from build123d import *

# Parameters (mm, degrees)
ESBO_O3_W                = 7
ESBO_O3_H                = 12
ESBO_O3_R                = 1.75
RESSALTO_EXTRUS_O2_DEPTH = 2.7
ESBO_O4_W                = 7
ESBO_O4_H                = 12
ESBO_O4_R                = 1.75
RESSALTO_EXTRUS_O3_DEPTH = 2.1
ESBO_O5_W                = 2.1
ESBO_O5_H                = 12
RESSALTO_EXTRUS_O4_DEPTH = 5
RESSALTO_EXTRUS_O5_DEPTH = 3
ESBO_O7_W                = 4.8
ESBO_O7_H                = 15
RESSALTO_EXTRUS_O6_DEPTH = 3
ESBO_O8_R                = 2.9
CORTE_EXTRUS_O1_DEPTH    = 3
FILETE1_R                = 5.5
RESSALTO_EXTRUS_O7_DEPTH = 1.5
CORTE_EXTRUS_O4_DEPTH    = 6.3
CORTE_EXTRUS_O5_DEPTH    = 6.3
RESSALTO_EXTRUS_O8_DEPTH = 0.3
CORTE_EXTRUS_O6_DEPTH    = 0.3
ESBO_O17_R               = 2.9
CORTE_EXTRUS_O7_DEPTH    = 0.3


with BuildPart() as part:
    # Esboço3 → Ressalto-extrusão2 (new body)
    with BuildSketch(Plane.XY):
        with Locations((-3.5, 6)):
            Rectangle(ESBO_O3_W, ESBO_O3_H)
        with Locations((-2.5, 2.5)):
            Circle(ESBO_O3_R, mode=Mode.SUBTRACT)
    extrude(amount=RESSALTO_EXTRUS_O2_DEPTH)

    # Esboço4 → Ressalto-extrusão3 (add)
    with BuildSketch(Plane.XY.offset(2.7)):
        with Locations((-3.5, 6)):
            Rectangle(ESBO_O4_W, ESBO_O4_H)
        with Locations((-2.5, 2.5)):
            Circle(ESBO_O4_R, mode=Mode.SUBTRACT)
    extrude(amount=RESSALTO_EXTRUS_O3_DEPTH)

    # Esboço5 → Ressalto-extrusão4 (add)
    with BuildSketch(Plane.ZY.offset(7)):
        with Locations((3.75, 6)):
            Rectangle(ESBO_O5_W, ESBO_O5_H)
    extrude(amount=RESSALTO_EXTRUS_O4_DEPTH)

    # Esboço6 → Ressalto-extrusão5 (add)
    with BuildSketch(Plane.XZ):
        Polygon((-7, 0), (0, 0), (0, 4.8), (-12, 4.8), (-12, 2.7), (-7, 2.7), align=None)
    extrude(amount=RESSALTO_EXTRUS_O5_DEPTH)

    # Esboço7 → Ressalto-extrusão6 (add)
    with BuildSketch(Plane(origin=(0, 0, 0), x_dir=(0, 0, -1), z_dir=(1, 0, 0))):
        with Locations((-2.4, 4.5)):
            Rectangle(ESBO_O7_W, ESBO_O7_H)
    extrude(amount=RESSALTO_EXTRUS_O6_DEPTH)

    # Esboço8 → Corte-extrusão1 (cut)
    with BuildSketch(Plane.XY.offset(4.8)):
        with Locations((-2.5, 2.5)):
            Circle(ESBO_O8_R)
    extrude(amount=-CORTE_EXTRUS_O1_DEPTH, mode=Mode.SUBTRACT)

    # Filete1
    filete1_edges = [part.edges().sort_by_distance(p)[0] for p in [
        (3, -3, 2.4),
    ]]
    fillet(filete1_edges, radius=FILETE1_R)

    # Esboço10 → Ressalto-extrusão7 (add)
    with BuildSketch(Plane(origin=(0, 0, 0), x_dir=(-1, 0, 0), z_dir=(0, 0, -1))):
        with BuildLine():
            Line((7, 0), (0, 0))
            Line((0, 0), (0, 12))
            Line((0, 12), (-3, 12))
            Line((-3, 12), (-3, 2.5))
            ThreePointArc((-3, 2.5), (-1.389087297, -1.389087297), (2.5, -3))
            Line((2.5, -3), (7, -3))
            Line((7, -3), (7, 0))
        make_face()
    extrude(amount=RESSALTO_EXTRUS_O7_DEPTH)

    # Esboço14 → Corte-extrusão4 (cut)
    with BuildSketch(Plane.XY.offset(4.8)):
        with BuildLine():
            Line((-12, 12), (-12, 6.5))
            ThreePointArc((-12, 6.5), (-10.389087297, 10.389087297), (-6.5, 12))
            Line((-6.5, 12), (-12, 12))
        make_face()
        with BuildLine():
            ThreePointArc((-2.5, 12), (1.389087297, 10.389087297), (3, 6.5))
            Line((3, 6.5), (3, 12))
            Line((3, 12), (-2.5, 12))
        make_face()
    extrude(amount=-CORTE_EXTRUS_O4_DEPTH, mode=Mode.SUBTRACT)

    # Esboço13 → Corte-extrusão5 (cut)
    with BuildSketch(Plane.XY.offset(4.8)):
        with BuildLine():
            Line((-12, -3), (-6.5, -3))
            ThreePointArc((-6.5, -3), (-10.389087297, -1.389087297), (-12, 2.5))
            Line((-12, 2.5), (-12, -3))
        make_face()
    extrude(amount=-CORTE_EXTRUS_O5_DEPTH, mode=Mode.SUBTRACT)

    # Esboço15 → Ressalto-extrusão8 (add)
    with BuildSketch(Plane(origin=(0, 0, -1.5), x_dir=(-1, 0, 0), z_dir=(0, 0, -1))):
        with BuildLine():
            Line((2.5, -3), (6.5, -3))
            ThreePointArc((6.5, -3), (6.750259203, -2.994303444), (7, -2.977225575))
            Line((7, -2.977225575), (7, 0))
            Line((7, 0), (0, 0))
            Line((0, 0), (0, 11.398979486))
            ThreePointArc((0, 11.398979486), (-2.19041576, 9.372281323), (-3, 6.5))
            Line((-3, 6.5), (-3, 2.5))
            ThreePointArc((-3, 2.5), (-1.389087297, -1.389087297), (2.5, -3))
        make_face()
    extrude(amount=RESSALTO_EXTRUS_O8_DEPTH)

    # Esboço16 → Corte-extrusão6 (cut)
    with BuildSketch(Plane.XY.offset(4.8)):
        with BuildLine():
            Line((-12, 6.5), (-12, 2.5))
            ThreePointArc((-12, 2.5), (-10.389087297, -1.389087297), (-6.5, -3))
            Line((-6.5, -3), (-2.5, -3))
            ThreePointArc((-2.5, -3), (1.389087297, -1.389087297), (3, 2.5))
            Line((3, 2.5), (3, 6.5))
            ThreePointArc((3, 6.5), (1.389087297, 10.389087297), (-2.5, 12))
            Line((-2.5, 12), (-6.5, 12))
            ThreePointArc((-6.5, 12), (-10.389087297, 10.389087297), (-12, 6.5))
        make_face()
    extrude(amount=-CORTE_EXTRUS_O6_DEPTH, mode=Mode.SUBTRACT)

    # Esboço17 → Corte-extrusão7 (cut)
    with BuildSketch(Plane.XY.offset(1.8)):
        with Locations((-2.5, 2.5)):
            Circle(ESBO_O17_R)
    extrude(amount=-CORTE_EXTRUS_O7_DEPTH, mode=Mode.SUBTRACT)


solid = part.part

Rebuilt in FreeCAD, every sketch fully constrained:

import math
import FreeCAD as App
import Part
import Sketcher

V = App.Vector
Q = App.Units.Quantity


def edges_at(feature, points):
    """Names of the edges that pass closest to the given points."""
    edges = feature.Shape.Edges
    near = lambda p: min(range(len(edges)), key=lambda i: edges[i].distToShape(Part.Vertex(*p))[0])
    return sorted({f"Edge{near(p) + 1}" for p in points})


def add_polygon(sketch, points):
    """Adds a closed chain of lines whose ends are joined by coincident constraints."""
    first, n = sketch.GeometryCount, len(points)
    for a, b in zip(points, points[1:] + points[:1]):
        sketch.addGeometry(Part.LineSegment(App.Vector(*a, 0), App.Vector(*b, 0)), False)
    for i in range(n):
        sketch.addConstraint(Sketcher.Constraint("Coincident", first + i, 2, first + (i + 1) % n, 1))

doc = App.newDocument("Part")
body = doc.addObject("PartDesign::Body", "Body")

# Sketch on XY plane
sketch1 = body.newObject("Sketcher::SketchObject", "Sketch")
sketch1.AttachmentSupport = (doc.getObject("XY_Plane"), [""])
sketch1.MapMode = "FlatFace"
add_polygon(sketch1, [(-7, 12), (-7, 0), (0, 0), (0, 12)])  # lines 0-3
sketch1.addGeometry(Part.Circle(V(-2.5, 2.5, 0), V(0, 0, 1), 1.75), False)  # 4
sketch1.addConstraint(Sketcher.Constraint("Vertical", 0))
sketch1.addConstraint(Sketcher.Constraint("Horizontal", 1))
sketch1.addConstraint(Sketcher.Constraint("Vertical", 2))
sketch1.addConstraint(Sketcher.Constraint("Horizontal", 3))
sketch1.addConstraint(Sketcher.Constraint("Coincident", 1, 2, -1, 1))
sketch1.addConstraint(Sketcher.Constraint("Diameter", 4, Q("3.5 mm")))
sketch1.addConstraint(Sketcher.Constraint("DistanceX", 1, 1, 1, 2, Q("7 mm")))
sketch1.addConstraint(Sketcher.Constraint("DistanceY", 0, 2, 0, 1, Q("12 mm")))
sketch1.addConstraint(Sketcher.Constraint("DistanceX", 4, 3, -1, 1, Q("2.5 mm")))
sketch1.addConstraint(Sketcher.Constraint("DistanceY", -1, 1, 4, 3, Q("2.5 mm")))
pad1 = body.newObject("PartDesign::Pad", "Pad")
pad1.Profile = sketch1
pad1.Length = 2.7

# Sketch on XY plane
sketch2 = body.newObject("Sketcher::SketchObject", "Sketch001")
sketch2.AttachmentSupport = (doc.getObject("XY_Plane"), [""])
sketch2.MapMode = "FlatFace"
sketch2.AttachmentOffset = App.Placement(V(0, 0, 2.7), App.Rotation())
add_polygon(sketch2, [(-7, 12), (-7, 0), (0, 0), (0, 12)])  # lines 0-3
sketch2.addGeometry(Part.Circle(V(-2.5, 2.5, 0), V(0, 0, 1), 1.75), False)  # 4
sketch2.addConstraint(Sketcher.Constraint("Vertical", 0))
sketch2.addConstraint(Sketcher.Constraint("Horizontal", 1))
sketch2.addConstraint(Sketcher.Constraint("Vertical", 2))
sketch2.addConstraint(Sketcher.Constraint("Horizontal", 3))
sketch2.addConstraint(Sketcher.Constraint("Coincident", 1, 2, -1, 1))
sketch2.addConstraint(Sketcher.Constraint("Diameter", 4, Q("3.5 mm")))
sketch2.addConstraint(Sketcher.Constraint("DistanceX", 1, 1, 1, 2, Q("7 mm")))
sketch2.addConstraint(Sketcher.Constraint("DistanceY", 0, 2, 0, 1, Q("12 mm")))
sketch2.addConstraint(Sketcher.Constraint("DistanceX", 4, 3, -1, 1, Q("2.5 mm")))
sketch2.addConstraint(Sketcher.Constraint("DistanceY", -1, 1, 4, 3, Q("2.5 mm")))
pad2 = body.newObject("PartDesign::Pad", "Pad001")
pad2.Profile = sketch2
pad2.Length = 2.1

# Sketch on YZ plane
sketch3 = body.newObject("Sketcher::SketchObject", "Sketch002")
sketch3.AttachmentSupport = (doc.getObject("YZ_Plane"), [""])
sketch3.MapMode = "FlatFace"
sketch3.AttachmentOffset = App.Placement(V(0, 0, -7), App.Rotation())
add_polygon(sketch3, [(12, 2.7), (0, 2.7), (0, 4.8), (12, 4.8)])  # lines 0-3
sketch3.addConstraint(Sketcher.Constraint("Horizontal", 0))
sketch3.addConstraint(Sketcher.Constraint("Vertical", 1))
sketch3.addConstraint(Sketcher.Constraint("Horizontal", 2))
sketch3.addConstraint(Sketcher.Constraint("Vertical", 3))
sketch3.addConstraint(Sketcher.Constraint("PointOnObject", 0, 2, -2))
sketch3.addConstraint(Sketcher.Constraint("DistanceX", 0, 2, 0, 1, Q("12 mm")))
sketch3.addConstraint(Sketcher.Constraint("DistanceY", 1, 1, 1, 2, Q("2.1 mm")))
sketch3.addConstraint(Sketcher.Constraint("DistanceY", -1, 1, 0, 2, Q("2.7 mm")))
pad3 = body.newObject("PartDesign::Pad", "Pad002")
pad3.Profile = sketch3
pad3.Length = 5
pad3.Reversed = True

# Sketch on XZ plane
sketch4 = body.newObject("Sketcher::SketchObject", "Sketch003")
sketch4.AttachmentSupport = (doc.getObject("XZ_Plane"), [""])
sketch4.MapMode = "FlatFace"
add_polygon(sketch4, [(-7, 0), (0, 0), (0, 4.8), (-12, 4.8), (-12, 2.7), (-7, 2.7)])  # lines 0-5
sketch4.addConstraint(Sketcher.Constraint("Horizontal", 0))
sketch4.addConstraint(Sketcher.Constraint("Vertical", 1))
sketch4.addConstraint(Sketcher.Constraint("Horizontal", 2))
sketch4.addConstraint(Sketcher.Constraint("Vertical", 3))
sketch4.addConstraint(Sketcher.Constraint("Horizontal", 4))
sketch4.addConstraint(Sketcher.Constraint("Vertical", 5))
sketch4.addConstraint(Sketcher.Constraint("Coincident", 0, 2, -1, 1))
sketch4.addConstraint(Sketcher.Constraint("DistanceX", 0, 1, 0, 2, Q("7 mm")))
sketch4.addConstraint(Sketcher.Constraint("DistanceX", 2, 2, 2, 1, Q("12 mm")))
sketch4.addConstraint(Sketcher.Constraint("DistanceY", 1, 1, 1, 2, Q("4.8 mm")))
sketch4.addConstraint(Sketcher.Constraint("DistanceY", 3, 2, 3, 1, Q("2.1 mm")))
pad4 = body.newObject("PartDesign::Pad", "Pad003")
pad4.Profile = sketch4
pad4.Length = 3

# Sketch on YZ plane
sketch5 = body.newObject("Sketcher::SketchObject", "Sketch004")
sketch5.AttachmentSupport = (doc.getObject("YZ_Plane"), [""])
sketch5.MapMode = "FlatFace"
add_polygon(sketch5, [(12, 4.8), (-3, 4.8), (-3, 0), (12, 0)])  # lines 0-3
sketch5.addConstraint(Sketcher.Constraint("Horizontal", 0))
sketch5.addConstraint(Sketcher.Constraint("Vertical", 1))
sketch5.addConstraint(Sketcher.Constraint("Horizontal", 2))
sketch5.addConstraint(Sketcher.Constraint("Vertical", 3))
sketch5.addConstraint(Sketcher.Constraint("PointOnObject", 1, 2, -1))
sketch5.addConstraint(Sketcher.Constraint("DistanceX", 0, 2, 0, 1, Q("15 mm")))
sketch5.addConstraint(Sketcher.Constraint("DistanceY", 1, 2, 1, 1, Q("4.8 mm")))
sketch5.addConstraint(Sketcher.Constraint("DistanceX", 0, 2, -1, 1, Q("3 mm")))
pad5 = body.newObject("PartDesign::Pad", "Pad004")
pad5.Profile = sketch5
pad5.Length = 3

# Sketch on XY plane
sketch6 = body.newObject("Sketcher::SketchObject", "Sketch005")
sketch6.AttachmentSupport = (doc.getObject("XY_Plane"), [""])
sketch6.MapMode = "FlatFace"
sketch6.AttachmentOffset = App.Placement(V(0, 0, 4.8), App.Rotation())
sketch6.addGeometry(Part.Circle(V(-2.5, 2.5, 0), V(0, 0, 1), 2.9), False)
sketch6.addConstraint(Sketcher.Constraint("Diameter", 0, Q("5.8 mm")))
sketch6.addConstraint(Sketcher.Constraint("DistanceX", 0, 3, -1, 1, Q("2.5 mm")))
sketch6.addConstraint(Sketcher.Constraint("DistanceY", -1, 1, 0, 3, Q("2.5 mm")))
pocket1 = body.newObject("PartDesign::Pocket", "Pocket")
pocket1.Profile = sketch6
pocket1.Length = 3
doc.recompute()

fillet = body.newObject("PartDesign::Fillet", "Fillet")
fillet.Base = (pocket1, edges_at(pocket1, [(3, -3, 2.4)]))
fillet.Radius = 5.5

# Sketch on XY plane
sketch7 = body.newObject("Sketcher::SketchObject", "Sketch006")
sketch7.AttachmentSupport = (doc.getObject("XY_Plane"), [""])
sketch7.MapMode = "FlatFace"
sketch7.addGeometry(Part.LineSegment(V(-7, 0, 0), V(0, 0, 0)), False)
sketch7.addGeometry(Part.LineSegment(V(0, 0, 0), V(0, 12, 0)), False)
sketch7.addGeometry(Part.LineSegment(V(0, 12, 0), V(3, 12, 0)), False)
sketch7.addGeometry(Part.LineSegment(V(3, 12, 0), V(3, 2.5, 0)), False)
sketch7.addGeometry(Part.ArcOfCircle(Part.Circle(V(-2.5, 2.5, 0), V(0, 0, 1), 5.5), math.radians(-90), math.radians(0)), False)
sketch7.addGeometry(Part.LineSegment(V(-2.5, -3, 0), V(-7, -3, 0)), False)
sketch7.addGeometry(Part.LineSegment(V(-7, -3, 0), V(-7, 0, 0)), False)
sketch7.addConstraint(Sketcher.Constraint("Coincident", 0, 2, 1, 1))
sketch7.addConstraint(Sketcher.Constraint("Coincident", 1, 2, 2, 1))
sketch7.addConstraint(Sketcher.Constraint("Coincident", 2, 2, 3, 1))
sketch7.addConstraint(Sketcher.Constraint("Tangent", 3, 2, 4, 2))
sketch7.addConstraint(Sketcher.Constraint("Tangent", 4, 1, 5, 1))
sketch7.addConstraint(Sketcher.Constraint("Coincident", 5, 2, 6, 1))
sketch7.addConstraint(Sketcher.Constraint("Coincident", 6, 2, 0, 1))
sketch7.addConstraint(Sketcher.Constraint("Horizontal", 0))
sketch7.addConstraint(Sketcher.Constraint("Vertical", 1))
sketch7.addConstraint(Sketcher.Constraint("Horizontal", 2))
sketch7.addConstraint(Sketcher.Constraint("Vertical", 3))
sketch7.addConstraint(Sketcher.Constraint("Horizontal", 5))
sketch7.addConstraint(Sketcher.Constraint("Vertical", 6))
sketch7.addConstraint(Sketcher.Constraint("Coincident", 0, 2, -1, 1))
sketch7.addConstraint(Sketcher.Constraint("Equal", 2, 6))
sketch7.addConstraint(Sketcher.Constraint("Radius", 4, Q("5.5 mm")))
sketch7.addConstraint(Sketcher.Constraint("DistanceX", 0, 1, 0, 2, Q("7 mm")))
sketch7.addConstraint(Sketcher.Constraint("DistanceX", 2, 1, 2, 2, Q("3 mm")))
sketch7.addConstraint(Sketcher.Constraint("DistanceY", 1, 1, 1, 2, Q("12 mm")))
pad6 = body.newObject("PartDesign::Pad", "Pad005")
pad6.Profile = sketch7
pad6.Length = 1.5
pad6.Reversed = True

# Sketch on XY plane
sketch8 = body.newObject("Sketcher::SketchObject", "Sketch007")
sketch8.AttachmentSupport = (doc.getObject("XY_Plane"), [""])
sketch8.MapMode = "FlatFace"
sketch8.AttachmentOffset = App.Placement(V(0, 0, 4.8), App.Rotation())
sketch8.addGeometry(Part.LineSegment(V(-12, 12, 0), V(-12, 6.5, 0)), False)
sketch8.addGeometry(Part.ArcOfCircle(Part.Circle(V(-6.5, 6.5, 0), V(0, 0, 1), 5.5), math.radians(90), math.radians(180)), False)
sketch8.addGeometry(Part.LineSegment(V(-6.5, 12, 0), V(-12, 12, 0)), False)
sketch8.addGeometry(Part.ArcOfCircle(Part.Circle(V(-2.5, 6.5, 0), V(0, 0, 1), 5.5), math.radians(0), math.radians(90)), False)
sketch8.addGeometry(Part.LineSegment(V(3, 6.5, 0), V(3, 12, 0)), False)
sketch8.addGeometry(Part.LineSegment(V(3, 12, 0), V(-2.5, 12, 0)), False)
sketch8.addConstraint(Sketcher.Constraint("Tangent", 0, 2, 1, 2))
sketch8.addConstraint(Sketcher.Constraint("Tangent", 1, 1, 2, 1))
sketch8.addConstraint(Sketcher.Constraint("Coincident", 2, 2, 0, 1))
sketch8.addConstraint(Sketcher.Constraint("Tangent", 3, 1, 4, 1))
sketch8.addConstraint(Sketcher.Constraint("Coincident", 4, 2, 5, 1))
sketch8.addConstraint(Sketcher.Constraint("Tangent", 5, 2, 3, 2))
sketch8.addConstraint(Sketcher.Constraint("Vertical", 0))
sketch8.addConstraint(Sketcher.Constraint("Horizontal", 2))
sketch8.addConstraint(Sketcher.Constraint("Vertical", 4))
sketch8.addConstraint(Sketcher.Constraint("Horizontal", 5))
sketch8.addConstraint(Sketcher.Constraint("Equal", 1, 3))
sketch8.addConstraint(Sketcher.Constraint("Horizontal", 1, 3, 3, 3))
sketch8.addConstraint(Sketcher.Constraint("Radius", 1, Q("5.5 mm")))
sketch8.addConstraint(Sketcher.Constraint("DistanceX", 0, 2, -1, 1, Q("12 mm")))
sketch8.addConstraint(Sketcher.Constraint("DistanceY", -1, 1, 1, 1, Q("12 mm")))
sketch8.addConstraint(Sketcher.Constraint("DistanceX", -1, 1, 3, 1, Q("3 mm")))
pocket2 = body.newObject("PartDesign::Pocket", "Pocket001")
pocket2.Profile = sketch8
pocket2.Length = 6.3

# Sketch on XY plane
sketch9 = body.newObject("Sketcher::SketchObject", "Sketch008")
sketch9.AttachmentSupport = (doc.getObject("XY_Plane"), [""])
sketch9.MapMode = "FlatFace"
sketch9.AttachmentOffset = App.Placement(V(0, 0, 4.8), App.Rotation())
sketch9.addGeometry(Part.LineSegment(V(-12, -3, 0), V(-6.5, -3, 0)), False)
sketch9.addGeometry(Part.ArcOfCircle(Part.Circle(V(-6.5, 2.5, 0), V(0, 0, 1), 5.5), math.radians(180), math.radians(270)), False)
sketch9.addGeometry(Part.LineSegment(V(-12, 2.5, 0), V(-12, -3, 0)), False)
sketch9.addConstraint(Sketcher.Constraint("Tangent", 0, 2, 1, 2))
sketch9.addConstraint(Sketcher.Constraint("Tangent", 1, 1, 2, 1))
sketch9.addConstraint(Sketcher.Constraint("Coincident", 2, 2, 0, 1))
sketch9.addConstraint(Sketcher.Constraint("Horizontal", 0))
sketch9.addConstraint(Sketcher.Constraint("Vertical", 2))
sketch9.addConstraint(Sketcher.Constraint("Radius", 1, Q("5.5 mm")))
sketch9.addConstraint(Sketcher.Constraint("DistanceY", 0, 2, -1, 1, Q("3 mm")))
sketch9.addConstraint(Sketcher.Constraint("DistanceX", 1, 1, -1, 1, Q("12 mm")))
pocket3 = body.newObject("PartDesign::Pocket", "Pocket002")
pocket3.Profile = sketch9
pocket3.Length = 6.3

# Sketch on XY plane
sketch10 = body.newObject("Sketcher::SketchObject", "Sketch009")
sketch10.AttachmentSupport = (doc.getObject("XY_Plane"), [""])
sketch10.MapMode = "FlatFace"
sketch10.AttachmentOffset = App.Placement(V(0, 0, -1.5), App.Rotation())
sketch10.addGeometry(Part.LineSegment(V(-2.5, -3, 0), V(-6.5, -3, 0)), False)
sketch10.addGeometry(Part.ArcOfCircle(Part.Circle(V(-6.5, 2.5, 0), V(0, 0, 1), 5.5), math.radians(-95.215909), math.radians(-90)), False)
sketch10.addGeometry(Part.LineSegment(V(-7, -2.977226, 0), V(-7, 0, 0)), False)
sketch10.addGeometry(Part.LineSegment(V(-7, 0, 0), V(0, 0, 0)), False)
sketch10.addGeometry(Part.LineSegment(V(0, 0, 0), V(0, 11.398979, 0)), False)
sketch10.addGeometry(Part.ArcOfCircle(Part.Circle(V(-2.5, 6.5, 0), V(0, 0, 1), 5.5), math.radians(0), math.radians(62.964308)), False)
sketch10.addGeometry(Part.LineSegment(V(3, 6.5, 0), V(3, 2.5, 0)), False)
sketch10.addGeometry(Part.ArcOfCircle(Part.Circle(V(-2.5, 2.5, 0), V(0, 0, 1), 5.5), math.radians(-90), math.radians(0)), False)
sketch10.addConstraint(Sketcher.Constraint("Tangent", 0, 2, 1, 2))
sketch10.addConstraint(Sketcher.Constraint("Coincident", 1, 1, 2, 1))
sketch10.addConstraint(Sketcher.Constraint("Coincident", 2, 2, 3, 1))
sketch10.addConstraint(Sketcher.Constraint("Coincident", 3, 2, 4, 1))
sketch10.addConstraint(Sketcher.Constraint("Coincident", 4, 2, 5, 2))
sketch10.addConstraint(Sketcher.Constraint("Tangent", 5, 1, 6, 1))
sketch10.addConstraint(Sketcher.Constraint("Tangent", 6, 2, 7, 2))
sketch10.addConstraint(Sketcher.Constraint("Tangent", 7, 1, 0, 1))
sketch10.addConstraint(Sketcher.Constraint("Horizontal", 0))
sketch10.addConstraint(Sketcher.Constraint("Vertical", 2))
sketch10.addConstraint(Sketcher.Constraint("Horizontal", 3))
sketch10.addConstraint(Sketcher.Constraint("Vertical", 4))
sketch10.addConstraint(Sketcher.Constraint("Vertical", 6))
sketch10.addConstraint(Sketcher.Constraint("Coincident", 3, 2, -1, 1))
sketch10.addConstraint(Sketcher.Constraint("Equal", 1, 5))
sketch10.addConstraint(Sketcher.Constraint("Equal", 5, 7))
sketch10.addConstraint(Sketcher.Constraint("Equal", 0, 6))
sketch10.addConstraint(Sketcher.Constraint("Radius", 1, Q("5.5 mm")))
sketch10.addConstraint(Sketcher.Constraint("DistanceX", 0, 2, 0, 1, Q("4 mm")))
sketch10.addConstraint(Sketcher.Constraint("DistanceX", 3, 1, 3, 2, Q("7 mm")))
sketch10.addConstraint(Sketcher.Constraint("DistanceY", 0, 2, -1, 1, Q("3 mm")))
sketch10.addConstraint(Sketcher.Constraint("DistanceX", -1, 1, 5, 1, Q("3 mm")))
pad7 = body.newObject("PartDesign::Pad", "Pad006")
pad7.Profile = sketch10
pad7.Length = 0.3
pad7.Reversed = True

# Sketch on XY plane
sketch11 = body.newObject("Sketcher::SketchObject", "Sketch010")
sketch11.AttachmentSupport = (doc.getObject("XY_Plane"), [""])
sketch11.MapMode = "FlatFace"
sketch11.AttachmentOffset = App.Placement(V(0, 0, 4.8), App.Rotation())
sketch11.addGeometry(Part.LineSegment(V(-12, 6.5, 0), V(-12, 2.5, 0)), False)
sketch11.addGeometry(Part.ArcOfCircle(Part.Circle(V(-6.5, 2.5, 0), V(0, 0, 1), 5.5), math.radians(180), math.radians(270)), False)
sketch11.addGeometry(Part.LineSegment(V(-6.5, -3, 0), V(-2.5, -3, 0)), False)
sketch11.addGeometry(Part.ArcOfCircle(Part.Circle(V(-2.5, 2.5, 0), V(0, 0, 1), 5.5), math.radians(-90), math.radians(0)), False)
sketch11.addGeometry(Part.LineSegment(V(3, 2.5, 0), V(3, 6.5, 0)), False)
sketch11.addGeometry(Part.ArcOfCircle(Part.Circle(V(-2.5, 6.5, 0), V(0, 0, 1), 5.5), math.radians(0), math.radians(90)), False)
sketch11.addGeometry(Part.LineSegment(V(-2.5, 12, 0), V(-6.5, 12, 0)), False)
sketch11.addGeometry(Part.ArcOfCircle(Part.Circle(V(-6.5, 6.5, 0), V(0, 0, 1), 5.5), math.radians(90), math.radians(180)), False)
sketch11.addConstraint(Sketcher.Constraint("Tangent", 0, 2, 1, 1))
sketch11.addConstraint(Sketcher.Constraint("Tangent", 1, 2, 2, 1))
sketch11.addConstraint(Sketcher.Constraint("Tangent", 2, 2, 3, 1))
sketch11.addConstraint(Sketcher.Constraint("Tangent", 3, 2, 4, 1))
sketch11.addConstraint(Sketcher.Constraint("Tangent", 4, 2, 5, 1))
sketch11.addConstraint(Sketcher.Constraint("Tangent", 5, 2, 6, 1))
sketch11.addConstraint(Sketcher.Constraint("Tangent", 6, 2, 7, 1))
sketch11.addConstraint(Sketcher.Constraint("Tangent", 7, 2, 0, 1))
sketch11.addConstraint(Sketcher.Constraint("Vertical", 0))
sketch11.addConstraint(Sketcher.Constraint("Horizontal", 2))
sketch11.addConstraint(Sketcher.Constraint("Vertical", 4))
sketch11.addConstraint(Sketcher.Constraint("Horizontal", 6))
sketch11.addConstraint(Sketcher.Constraint("Equal", 1, 3))
sketch11.addConstraint(Sketcher.Constraint("Equal", 3, 5))
sketch11.addConstraint(Sketcher.Constraint("Equal", 5, 7))
sketch11.addConstraint(Sketcher.Constraint("Equal", 6, 0))
sketch11.addConstraint(Sketcher.Constraint("Radius", 1, Q("5.5 mm")))
sketch11.addConstraint(Sketcher.Constraint("DistanceX", 2, 1, 2, 2, Q("4 mm")))
sketch11.addConstraint(Sketcher.Constraint("DistanceX", 0, 2, -1, 1, Q("12 mm")))
sketch11.addConstraint(Sketcher.Constraint("DistanceY", 1, 2, -1, 1, Q("3 mm")))
pocket4 = body.newObject("PartDesign::Pocket", "Pocket003")
pocket4.Profile = sketch11
pocket4.Length = 0.3

# Sketch on XY plane
sketch12 = body.newObject("Sketcher::SketchObject", "Sketch011")
sketch12.AttachmentSupport = (doc.getObject("XY_Plane"), [""])
sketch12.MapMode = "FlatFace"
sketch12.AttachmentOffset = App.Placement(V(0, 0, 1.8), App.Rotation())
sketch12.addGeometry(Part.Circle(V(-2.5, 2.5, 0), V(0, 0, 1), 2.9), False)
sketch12.addConstraint(Sketcher.Constraint("Diameter", 0, Q("5.8 mm")))
sketch12.addConstraint(Sketcher.Constraint("DistanceX", 0, 3, -1, 1, Q("2.5 mm")))
sketch12.addConstraint(Sketcher.Constraint("DistanceY", -1, 1, 0, 3, Q("2.5 mm")))
pocket5 = body.newObject("PartDesign::Pocket", "Pocket004")
pocket5.Profile = sketch12
pocket5.Length = 0.3

doc.recompute()
